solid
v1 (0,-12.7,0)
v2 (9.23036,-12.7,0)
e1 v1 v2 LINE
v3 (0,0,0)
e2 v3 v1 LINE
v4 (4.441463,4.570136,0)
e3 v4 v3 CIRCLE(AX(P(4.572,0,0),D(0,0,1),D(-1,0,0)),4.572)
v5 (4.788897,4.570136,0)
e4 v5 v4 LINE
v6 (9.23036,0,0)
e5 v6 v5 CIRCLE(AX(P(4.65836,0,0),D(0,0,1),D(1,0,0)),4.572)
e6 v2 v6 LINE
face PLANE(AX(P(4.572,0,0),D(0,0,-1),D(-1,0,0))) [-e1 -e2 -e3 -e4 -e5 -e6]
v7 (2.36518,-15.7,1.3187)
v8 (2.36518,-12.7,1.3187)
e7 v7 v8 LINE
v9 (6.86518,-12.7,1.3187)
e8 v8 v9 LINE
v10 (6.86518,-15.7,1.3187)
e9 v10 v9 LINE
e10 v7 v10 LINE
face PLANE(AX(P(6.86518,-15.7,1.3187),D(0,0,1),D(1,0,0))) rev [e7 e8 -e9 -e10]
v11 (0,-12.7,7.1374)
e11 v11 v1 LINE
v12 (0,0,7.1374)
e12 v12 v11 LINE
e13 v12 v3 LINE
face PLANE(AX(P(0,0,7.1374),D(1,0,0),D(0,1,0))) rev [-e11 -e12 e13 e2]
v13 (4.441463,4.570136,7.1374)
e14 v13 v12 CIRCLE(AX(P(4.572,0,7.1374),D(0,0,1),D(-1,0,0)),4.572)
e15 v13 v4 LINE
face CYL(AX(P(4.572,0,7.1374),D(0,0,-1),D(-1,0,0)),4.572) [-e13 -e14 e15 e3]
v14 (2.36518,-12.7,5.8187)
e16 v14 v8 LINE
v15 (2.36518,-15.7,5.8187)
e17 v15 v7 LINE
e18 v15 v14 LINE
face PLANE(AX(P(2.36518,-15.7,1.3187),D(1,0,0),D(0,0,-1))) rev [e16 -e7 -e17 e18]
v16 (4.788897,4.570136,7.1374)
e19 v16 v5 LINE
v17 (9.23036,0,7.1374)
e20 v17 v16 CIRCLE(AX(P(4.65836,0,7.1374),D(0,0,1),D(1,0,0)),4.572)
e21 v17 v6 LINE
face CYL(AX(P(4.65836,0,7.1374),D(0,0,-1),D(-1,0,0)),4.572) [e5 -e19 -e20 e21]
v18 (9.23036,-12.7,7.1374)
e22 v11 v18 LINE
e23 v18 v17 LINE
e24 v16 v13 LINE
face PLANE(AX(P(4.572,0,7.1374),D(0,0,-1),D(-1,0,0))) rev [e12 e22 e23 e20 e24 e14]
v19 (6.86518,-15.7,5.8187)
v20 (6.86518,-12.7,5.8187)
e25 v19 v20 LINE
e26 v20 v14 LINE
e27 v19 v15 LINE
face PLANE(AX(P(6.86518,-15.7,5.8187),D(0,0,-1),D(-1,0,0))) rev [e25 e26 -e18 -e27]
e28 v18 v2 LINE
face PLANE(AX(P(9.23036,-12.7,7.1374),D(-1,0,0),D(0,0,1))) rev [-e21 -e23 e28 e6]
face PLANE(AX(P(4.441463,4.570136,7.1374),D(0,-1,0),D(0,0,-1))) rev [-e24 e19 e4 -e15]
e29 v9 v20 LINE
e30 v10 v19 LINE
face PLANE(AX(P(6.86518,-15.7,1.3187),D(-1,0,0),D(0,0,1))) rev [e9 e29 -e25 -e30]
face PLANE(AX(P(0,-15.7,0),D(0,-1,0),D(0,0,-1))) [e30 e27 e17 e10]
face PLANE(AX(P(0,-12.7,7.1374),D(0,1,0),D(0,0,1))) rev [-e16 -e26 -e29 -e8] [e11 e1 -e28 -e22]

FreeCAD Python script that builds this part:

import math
import FreeCAD as App
import Part
import Sketcher

V = App.Vector
Q = App.Units.Quantity

doc = App.newDocument("Part")
body = doc.addObject("PartDesign::Body", "Body")

# Sketch on XY plane
sketch1 = body.newObject("Sketcher::SketchObject", "Sketch")
sketch1.AttachmentSupport = (doc.getObject("XY_Plane"), [""])
sketch1.MapMode = "FlatFace"
sketch1.addGeometry(Part.LineSegment(V(0, 0, 0), V(0, -12.7, 0)), False)
sketch1.addGeometry(Part.LineSegment(V(0, -12.7, 0), V(9.23, -12.7, 0)), False)
sketch1.addGeometry(Part.LineSegment(V(9.23, -12.7, 0), V(9.23, 0, 0)), False)
sketch1.addGeometry(Part.ArcOfCircle(Part.Circle(V(4.66, 0, 0), V(0, 0, 1), 4.57), math.radians(0), math.radians(88)), False)
sketch1.addGeometry(Part.LineSegment(V(4.79, 4.57, 0), V(4.44, 4.57, 0)), False)
sketch1.addGeometry(Part.ArcOfCircle(Part.Circle(V(4.57, 0, 0), V(0, 0, 1), 4.57), math.radians(92), math.radians(180)), False)
sketch1.addConstraint(Sketcher.Constraint("Coincident", 0, 2, 1, 1))
sketch1.addConstraint(Sketcher.Constraint("Coincident", 1, 2, 2, 1))
sketch1.addConstraint(Sketcher.Constraint("Tangent", 2, 2, 3, 1))
sketch1.addConstraint(Sketcher.Constraint("Coincident", 3, 2, 4, 1))
sketch1.addConstraint(Sketcher.Constraint("Coincident", 4, 2, 5, 1))
sketch1.addConstraint(Sketcher.Constraint("Tangent", 5, 2, 0, 1))
sketch1.addConstraint(Sketcher.Constraint("Vertical", 0))
sketch1.addConstraint(Sketcher.Constraint("Horizontal", 1))
sketch1.addConstraint(Sketcher.Constraint("Vertical", 2))
sketch1.addConstraint(Sketcher.Constraint("Horizontal", 4))
sketch1.addConstraint(Sketcher.Constraint("Coincident", 5, 2, -1, 1))
sketch1.addConstraint(Sketcher.Constraint("Equal", 3, 5))
sketch1.addConstraint(Sketcher.Constraint("PointOnObject", 3, 3, -1))
sketch1.addConstraint(Sketcher.Constraint("Radius", 3, Q("0.18 in")))
sketch1.addConstraint(Sketcher.Constraint("DistanceY", 0, 2, 0, 1, Q("0.5 in")))
sketch1.addConstraint(Sketcher.Constraint("DistanceX", 1, 1, 1, 2, Q("0.3634 in")))
sketch1.addConstraint(Sketcher.Constraint("DistanceX", 4, 2, 4, 1, Q("0.347434 mm")))
pad1 = body.newObject("PartDesign::Pad", "Pad")
pad1.Profile = sketch1
pad1.Length = Q("0.281 in")

# Sketch on XZ plane
sketch2 = body.newObject("Sketcher::SketchObject", "Sketch001")
sketch2.AttachmentSupport = (doc.getObject("XZ_Plane"), [""])
sketch2.MapMode = "FlatFace"
sketch2.AttachmentOffset = App.Placement(V(0, 0, 0.5 * 25.4), App.Rotation())
sketch2.addGeometry(Part.LineSegment(V(2.4, 5.8, 0), V(2.4, 1.3, 0)), False)
sketch2.addGeometry(Part.LineSegment(V(2.4, 1.3, 0), V(6.9, 1.3, 0)), False)
sketch2.addGeometry(Part.LineSegment(V(6.9, 1.3, 0), V(6.9, 5.8, 0)), False)
sketch2.addGeometry(Part.LineSegment(V(6.9, 5.8, 0), V(2.4, 5.8, 0)), False)
sketch2.addConstraint(Sketcher.Constraint("Coincident", 0, 2, 1, 1))
sketch2.addConstraint(Sketcher.Constraint("Coincident", 1, 2, 2, 1))
sketch2.addConstraint(Sketcher.Constraint("Coincident", 2, 2, 3, 1))
sketch2.addConstraint(Sketcher.Constraint("Coincident", 3, 2, 0, 1))
sketch2.addConstraint(Sketcher.Constraint("Vertical", 0))
sketch2.addConstraint(Sketcher.Constraint("Horizontal", 1))
sketch2.addConstraint(Sketcher.Constraint("Vertical", 2))
sketch2.addConstraint(Sketcher.Constraint("Horizontal", 3))
sketch2.addConstraint(Sketcher.Constraint("Equal", 3, 0))
sketch2.addConstraint(Sketcher.Constraint("DistanceX", 1, 1, 1, 2, Q("4.5 mm")))
sketch2.addConstraint(Sketcher.Constraint("DistanceY", -1, 1, 0, 2, Q("1.3187 mm")))
sketch2.addConstraint(Sketcher.Constraint("DistanceX", -1, 1, 0, 2, Q("2.36518 mm")))
pad2 = body.newObject("PartDesign::Pad", "Pad001")
pad2.Profile = sketch2
pad2.Length = 3

doc.recompute()
